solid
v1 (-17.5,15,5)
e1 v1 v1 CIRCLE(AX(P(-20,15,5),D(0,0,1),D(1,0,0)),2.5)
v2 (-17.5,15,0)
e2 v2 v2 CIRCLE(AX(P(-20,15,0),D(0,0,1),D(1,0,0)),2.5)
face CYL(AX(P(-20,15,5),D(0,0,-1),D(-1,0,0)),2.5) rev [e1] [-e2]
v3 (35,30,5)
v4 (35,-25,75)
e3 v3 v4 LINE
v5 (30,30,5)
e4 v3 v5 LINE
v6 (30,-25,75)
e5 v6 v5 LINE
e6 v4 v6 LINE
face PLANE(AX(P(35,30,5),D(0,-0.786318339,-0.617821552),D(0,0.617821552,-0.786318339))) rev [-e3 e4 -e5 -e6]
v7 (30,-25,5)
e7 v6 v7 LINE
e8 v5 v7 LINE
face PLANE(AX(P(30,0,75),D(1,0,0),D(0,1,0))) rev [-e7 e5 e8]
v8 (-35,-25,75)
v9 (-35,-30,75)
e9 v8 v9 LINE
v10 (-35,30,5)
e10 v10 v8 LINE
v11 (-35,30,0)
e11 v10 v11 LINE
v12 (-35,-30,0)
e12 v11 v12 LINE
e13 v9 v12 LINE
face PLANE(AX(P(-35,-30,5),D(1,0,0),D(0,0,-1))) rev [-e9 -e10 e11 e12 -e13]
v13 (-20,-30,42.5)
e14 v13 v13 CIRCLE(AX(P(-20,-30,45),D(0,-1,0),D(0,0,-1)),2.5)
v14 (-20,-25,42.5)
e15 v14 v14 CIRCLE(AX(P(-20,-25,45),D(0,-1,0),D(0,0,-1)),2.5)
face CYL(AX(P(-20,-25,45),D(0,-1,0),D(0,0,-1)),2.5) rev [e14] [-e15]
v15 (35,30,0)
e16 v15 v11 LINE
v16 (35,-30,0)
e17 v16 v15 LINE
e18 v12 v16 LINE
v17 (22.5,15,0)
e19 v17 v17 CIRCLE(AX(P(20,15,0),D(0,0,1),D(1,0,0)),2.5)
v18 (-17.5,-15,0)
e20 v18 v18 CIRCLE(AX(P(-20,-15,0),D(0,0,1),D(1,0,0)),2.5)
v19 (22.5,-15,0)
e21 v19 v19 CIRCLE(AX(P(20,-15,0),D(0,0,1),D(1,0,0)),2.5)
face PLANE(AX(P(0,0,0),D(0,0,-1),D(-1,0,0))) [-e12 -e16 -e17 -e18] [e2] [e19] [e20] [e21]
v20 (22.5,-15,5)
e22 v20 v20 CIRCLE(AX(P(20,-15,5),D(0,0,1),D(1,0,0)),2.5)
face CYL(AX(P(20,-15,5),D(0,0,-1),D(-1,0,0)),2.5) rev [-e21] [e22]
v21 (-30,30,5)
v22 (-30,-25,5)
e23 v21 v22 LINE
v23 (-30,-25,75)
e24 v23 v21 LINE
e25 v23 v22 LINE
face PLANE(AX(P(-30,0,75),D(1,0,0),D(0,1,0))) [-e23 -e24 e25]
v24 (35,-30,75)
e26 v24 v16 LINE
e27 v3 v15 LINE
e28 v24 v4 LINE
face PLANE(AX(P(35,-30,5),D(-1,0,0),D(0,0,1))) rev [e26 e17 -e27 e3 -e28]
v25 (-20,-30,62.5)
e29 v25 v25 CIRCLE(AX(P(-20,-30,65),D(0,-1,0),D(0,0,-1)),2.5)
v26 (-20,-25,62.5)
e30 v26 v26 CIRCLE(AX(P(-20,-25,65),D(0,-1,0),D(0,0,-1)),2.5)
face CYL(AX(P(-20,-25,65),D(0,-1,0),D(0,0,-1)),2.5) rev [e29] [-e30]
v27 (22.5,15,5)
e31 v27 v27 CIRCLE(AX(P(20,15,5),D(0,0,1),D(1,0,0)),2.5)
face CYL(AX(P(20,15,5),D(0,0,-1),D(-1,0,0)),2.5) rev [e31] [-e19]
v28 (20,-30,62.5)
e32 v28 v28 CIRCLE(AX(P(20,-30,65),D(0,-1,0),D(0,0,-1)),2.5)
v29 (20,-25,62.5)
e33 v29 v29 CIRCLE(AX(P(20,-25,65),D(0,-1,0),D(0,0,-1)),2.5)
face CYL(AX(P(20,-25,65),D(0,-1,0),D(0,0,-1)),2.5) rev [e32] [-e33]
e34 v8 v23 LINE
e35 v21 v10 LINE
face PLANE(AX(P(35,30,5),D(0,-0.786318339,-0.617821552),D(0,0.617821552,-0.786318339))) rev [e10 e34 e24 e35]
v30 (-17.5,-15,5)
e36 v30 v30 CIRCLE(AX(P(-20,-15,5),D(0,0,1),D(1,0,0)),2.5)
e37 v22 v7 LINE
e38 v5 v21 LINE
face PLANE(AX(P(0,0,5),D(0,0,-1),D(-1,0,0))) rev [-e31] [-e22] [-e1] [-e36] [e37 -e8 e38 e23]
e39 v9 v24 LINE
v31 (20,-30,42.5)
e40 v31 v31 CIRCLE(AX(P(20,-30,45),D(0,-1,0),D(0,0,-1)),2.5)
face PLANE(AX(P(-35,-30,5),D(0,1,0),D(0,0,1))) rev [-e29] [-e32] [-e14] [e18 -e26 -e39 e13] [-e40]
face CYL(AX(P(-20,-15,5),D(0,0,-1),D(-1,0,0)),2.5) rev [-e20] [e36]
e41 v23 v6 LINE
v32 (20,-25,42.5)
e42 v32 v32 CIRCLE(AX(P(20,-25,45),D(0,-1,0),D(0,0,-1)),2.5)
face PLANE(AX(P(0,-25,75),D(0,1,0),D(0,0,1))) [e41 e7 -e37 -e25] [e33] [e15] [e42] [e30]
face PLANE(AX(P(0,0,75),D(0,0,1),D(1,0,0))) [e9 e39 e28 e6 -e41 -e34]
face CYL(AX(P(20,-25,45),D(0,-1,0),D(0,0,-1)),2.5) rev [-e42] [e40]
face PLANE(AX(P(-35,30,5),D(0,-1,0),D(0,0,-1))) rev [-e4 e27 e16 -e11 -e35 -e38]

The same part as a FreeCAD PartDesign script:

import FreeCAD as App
import Part
import Sketcher
from FreeCAD import Vector
Q = App.Units.Quantity

doc = App.newDocument("Part")
params = doc.addObject("Spreadsheet::Sheet", "Params")
for row, (alias, value) in enumerate([
    ("sketch1_diameter", "5 mm"),
    ("sketch1_width", "70 mm"),
    ("sketch1_height", "60 mm"),
    ("pad1_length", "5 mm"),
    ("sketch2_width", "5 mm"),
    ("sketch2_width2", "70 mm"),
    ("sketch2_height", "55 mm"),
    ("pad2_length", "70 mm"),
    ("sketch3_width", "55 mm"),
    ("sketch3_height", "70 mm"),
    ("pocket1_length", "70 mm"),
    ("sketch4_diameter", "5 mm"),
    ("pocket2_length", "5 mm"),
], start=1):
    params.set(f"A{row}", alias)
    params.set(f"B{row}", "=" + value)
    params.setAlias(f"B{row}", alias)

body = doc.addObject("PartDesign::Body", "Body")

# Sketch on XY plane
sketch1 = body.newObject("Sketcher::SketchObject", "Sketch")
sketch1.AttachmentSupport = (doc.getObject("XY_Plane"), [""])
sketch1.MapMode = "FlatFace"
sketch1.addGeometry([
    Part.LineSegment(Vector(-35, 30, 0), Vector(-35, -30, 0)),  # 0
    Part.LineSegment(Vector(-35, -30, 0), Vector(35, -30, 0)),  # 1
    Part.LineSegment(Vector(35, -30, 0), Vector(35, 30, 0)),  # 2
    Part.LineSegment(Vector(35, 30, 0), Vector(-35, 30, 0)),  # 3
    Part.Circle(Vector(-20, -15, 0), Vector(0, 0, 1), 2.5),  # 4
    Part.Circle(Vector(20, -15, 0), Vector(0, 0, 1), 2.5),  # 5
    Part.Circle(Vector(-20, 15, 0), Vector(0, 0, 1), 2.5),  # 6
    Part.Circle(Vector(20, 15, 0), Vector(0, 0, 1), 2.5),  # 7
], False)
sketch1.addConstraint([
    Sketcher.Constraint("Coincident", 0, 2, 1, 1),
    Sketcher.Constraint("Coincident", 1, 2, 2, 1),
    Sketcher.Constraint("Coincident", 2, 2, 3, 1),
    Sketcher.Constraint("Coincident", 3, 2, 0, 1),
    Sketcher.Constraint("Vertical", 0),
    Sketcher.Constraint("Horizontal", 1),
    Sketcher.Constraint("Vertical", 2),
    Sketcher.Constraint("Horizontal", 3),
    Sketcher.Constraint("Equal", 4, 5),
    Sketcher.Constraint("Equal", 5, 6),
    Sketcher.Constraint("Equal", 6, 7),
    Sketcher.Constraint("Symmetric", 5, 3, 6, 3, -1, 1),
    Sketcher.Constraint("Symmetric", 4, 3, 7, 3, -1, 1),
    Sketcher.Constraint("Symmetric", 0, 2, 2, 2, -1, 1),
    Sketcher.Constraint("Symmetric", 4, 3, 5, 3, -2),
    Sketcher.Constraint("Diameter", 4, Q("5 mm")),
    Sketcher.Constraint("DistanceX", 1, 1, 1, 2, Q("70 mm")),
    Sketcher.Constraint("DistanceY", 0, 2, 0, 1, Q("60 mm")),
    Sketcher.Constraint("DistanceX", 4, 3, -1, 1, Q("20 mm")),
    Sketcher.Constraint("DistanceY", 4, 3, -1, 1, Q("15 mm")),
])
sketch1.setExpression("Constraints[15]", "Params.sketch1_diameter")
sketch1.setExpression("Constraints[16]", "Params.sketch1_width")
sketch1.setExpression("Constraints[17]", "Params.sketch1_height")
pad1 = body.newObject("PartDesign::Pad", "Pad")
pad1.Profile = sketch1
pad1.setExpression("Length", "Params.pad1_length")

# Sketch on XY plane
sketch2 = body.newObject("Sketcher::SketchObject", "Sketch001")
sketch2.AttachmentSupport = (doc.getObject("XY_Plane"), [""])
sketch2.MapMode = "FlatFace"
sketch2.AttachmentOffset = App.Placement(Vector(0, 0, 5), App.Rotation())
sketch2.addGeometry([
    Part.LineSegment(Vector(-30, 30, 0), Vector(-35, 30, 0)),  # 0
    Part.LineSegment(Vector(-35, 30, 0), Vector(-35, -30, 0)),  # 1
    Part.LineSegment(Vector(-35, -30, 0), Vector(35, -30, 0)),  # 2
    Part.LineSegment(Vector(35, -30, 0), Vector(35, 30, 0)),  # 3
    Part.LineSegment(Vector(35, 30, 0), Vector(30, 30, 0)),  # 4
    Part.LineSegment(Vector(30, 30, 0), Vector(30, -25, 0)),  # 5
    Part.LineSegment(Vector(30, -25, 0), Vector(-30, -25, 0)),  # 6
    Part.LineSegment(Vector(-30, -25, 0), Vector(-30, 30, 0)),  # 7
], False)
sketch2.addConstraint([
    Sketcher.Constraint("Coincident", 0, 2, 1, 1),
    Sketcher.Constraint("Coincident", 1, 2, 2, 1),
    Sketcher.Constraint("Coincident", 2, 2, 3, 1),
    Sketcher.Constraint("Coincident", 3, 2, 4, 1),
    Sketcher.Constraint("Coincident", 4, 2, 5, 1),
    Sketcher.Constraint("Coincident", 5, 2, 6, 1),
    Sketcher.Constraint("Coincident", 6, 2, 7, 1),
    Sketcher.Constraint("Coincident", 7, 2, 0, 1),
    Sketcher.Constraint("Horizontal", 0),
    Sketcher.Constraint("Vertical", 1),
    Sketcher.Constraint("Horizontal", 2),
    Sketcher.Constraint("Vertical", 3),
    Sketcher.Constraint("Horizontal", 4),
    Sketcher.Constraint("Vertical", 5),
    Sketcher.Constraint("Horizontal", 6),
    Sketcher.Constraint("Vertical", 7),
    Sketcher.Constraint("Symmetric", 0, 2, 2, 2, -1, 1),
    Sketcher.Constraint("Symmetric", 4, 2, 7, 2, -2),
    Sketcher.Constraint("Equal", 6, 1),
    Sketcher.Constraint("DistanceX", 0, 2, 0, 1, Q("5 mm")),
    Sketcher.Constraint("DistanceX", 2, 1, 2, 2, Q("70 mm")),
    Sketcher.Constraint("DistanceY", 5, 2, 5, 1, Q("55 mm")),
])
sketch2.setExpression("Constraints[19]", "Params.sketch2_width")
sketch2.setExpression("Constraints[20]", "Params.sketch2_width2")
sketch2.setExpression("Constraints[21]", "Params.sketch2_height")
pad2 = body.newObject("PartDesign::Pad", "Pad001")
pad2.Profile = sketch2
pad2.setExpression("Length", "Params.pad2_length")

# Sketch on YZ plane
sketch3 = body.newObject("Sketcher::SketchObject", "Sketch002")
sketch3.AttachmentSupport = (doc.getObject("YZ_Plane"), [""])
sketch3.MapMode = "FlatFace"
sketch3.AttachmentOffset = App.Placement(Vector(0, 0, -35), App.Rotation())
sketch3.addGeometry([
    Part.LineSegment(Vector(30, 5, 0), Vector(-25, 75, 0)),
    Part.LineSegment(Vector(-25, 75, 0), Vector(30, 75, 0)),
    Part.LineSegment(Vector(30, 75, 0), Vector(30, 5, 0)),
], False)
sketch3.addConstraint([
    Sketcher.Constraint("Coincident", 0, 2, 1, 1),
    Sketcher.Constraint("Coincident", 1, 2, 2, 1),
    Sketcher.Constraint("Coincident", 2, 2, 0, 1),
    Sketcher.Constraint("Horizontal", 1),
    Sketcher.Constraint("Vertical", 2),
    Sketcher.Constraint("DistanceX", 1, 1, 1, 2, Q("55 mm")),
    Sketcher.Constraint("DistanceY", 2, 2, 2, 1, Q("70 mm")),
    Sketcher.Constraint("DistanceX", 0, 2, -1, 1, Q("25 mm")),
    Sketcher.Constraint("DistanceY", -1, 1, 0, 2, Q("75 mm")),
])
sketch3.setExpression("Constraints[5]", "Params.sketch3_width")
sketch3.setExpression("Constraints[6]", "Params.sketch3_height")
pocket1 = body.newObject("PartDesign::Pocket", "Pocket")
pocket1.Profile = sketch3
pocket1.setExpression("Length", "Params.pocket1_length")
pocket1.Reversed = True

# Sketch on XZ plane
sketch4 = body.newObject("Sketcher::SketchObject", "Sketch003")
sketch4.AttachmentSupport = (doc.getObject("XZ_Plane"), [""])
sketch4.MapMode = "FlatFace"
sketch4.AttachmentOffset = App.Placement(Vector(0, 0, 30), App.Rotation())
sketch4.addGeometry([
    Part.Circle(Vector(-20, 65, 0), Vector(0, 0, 1), 2.5),
    Part.Circle(Vector(20, 65, 0), Vector(0, 0, 1), 2.5),
    Part.Circle(Vector(-20, 45, 0), Vector(0, 0, 1), 2.5),
    Part.Circle(Vector(20, 45, 0), Vector(0, 0, 1), 2.5),
], False)
sketch4.addConstraint([
    Sketcher.Constraint("Equal", 0, 1),
    Sketcher.Constraint("Equal", 1, 2),
    Sketcher.Constraint("Equal", 2, 3),
    Sketcher.Constraint("Symmetric", 0, 3, 1, 3, -2),
    Sketcher.Constraint("Symmetric", 2, 3, 3, 3, -2),
    Sketcher.Constraint("Vertical", 0, 3, 2, 3),
    Sketcher.Constraint("Diameter", 0, Q("5 mm")),
    Sketcher.Constraint("DistanceX", 0, 3, -1, 1, Q("20 mm")),
    Sketcher.Constraint("DistanceY", -1, 1, 0, 3, Q("65 mm")),
    Sketcher.Constraint("DistanceY", -1, 1, 2, 3, Q("45 mm")),
])
sketch4.setExpression("Constraints[6]", "Params.sketch4_diameter")
pocket2 = body.newObject("PartDesign::Pocket", "Pocket001")
pocket2.Profile = sketch4
pocket2.setExpression("Length", "Params.pocket2_length")

doc.recompute()
